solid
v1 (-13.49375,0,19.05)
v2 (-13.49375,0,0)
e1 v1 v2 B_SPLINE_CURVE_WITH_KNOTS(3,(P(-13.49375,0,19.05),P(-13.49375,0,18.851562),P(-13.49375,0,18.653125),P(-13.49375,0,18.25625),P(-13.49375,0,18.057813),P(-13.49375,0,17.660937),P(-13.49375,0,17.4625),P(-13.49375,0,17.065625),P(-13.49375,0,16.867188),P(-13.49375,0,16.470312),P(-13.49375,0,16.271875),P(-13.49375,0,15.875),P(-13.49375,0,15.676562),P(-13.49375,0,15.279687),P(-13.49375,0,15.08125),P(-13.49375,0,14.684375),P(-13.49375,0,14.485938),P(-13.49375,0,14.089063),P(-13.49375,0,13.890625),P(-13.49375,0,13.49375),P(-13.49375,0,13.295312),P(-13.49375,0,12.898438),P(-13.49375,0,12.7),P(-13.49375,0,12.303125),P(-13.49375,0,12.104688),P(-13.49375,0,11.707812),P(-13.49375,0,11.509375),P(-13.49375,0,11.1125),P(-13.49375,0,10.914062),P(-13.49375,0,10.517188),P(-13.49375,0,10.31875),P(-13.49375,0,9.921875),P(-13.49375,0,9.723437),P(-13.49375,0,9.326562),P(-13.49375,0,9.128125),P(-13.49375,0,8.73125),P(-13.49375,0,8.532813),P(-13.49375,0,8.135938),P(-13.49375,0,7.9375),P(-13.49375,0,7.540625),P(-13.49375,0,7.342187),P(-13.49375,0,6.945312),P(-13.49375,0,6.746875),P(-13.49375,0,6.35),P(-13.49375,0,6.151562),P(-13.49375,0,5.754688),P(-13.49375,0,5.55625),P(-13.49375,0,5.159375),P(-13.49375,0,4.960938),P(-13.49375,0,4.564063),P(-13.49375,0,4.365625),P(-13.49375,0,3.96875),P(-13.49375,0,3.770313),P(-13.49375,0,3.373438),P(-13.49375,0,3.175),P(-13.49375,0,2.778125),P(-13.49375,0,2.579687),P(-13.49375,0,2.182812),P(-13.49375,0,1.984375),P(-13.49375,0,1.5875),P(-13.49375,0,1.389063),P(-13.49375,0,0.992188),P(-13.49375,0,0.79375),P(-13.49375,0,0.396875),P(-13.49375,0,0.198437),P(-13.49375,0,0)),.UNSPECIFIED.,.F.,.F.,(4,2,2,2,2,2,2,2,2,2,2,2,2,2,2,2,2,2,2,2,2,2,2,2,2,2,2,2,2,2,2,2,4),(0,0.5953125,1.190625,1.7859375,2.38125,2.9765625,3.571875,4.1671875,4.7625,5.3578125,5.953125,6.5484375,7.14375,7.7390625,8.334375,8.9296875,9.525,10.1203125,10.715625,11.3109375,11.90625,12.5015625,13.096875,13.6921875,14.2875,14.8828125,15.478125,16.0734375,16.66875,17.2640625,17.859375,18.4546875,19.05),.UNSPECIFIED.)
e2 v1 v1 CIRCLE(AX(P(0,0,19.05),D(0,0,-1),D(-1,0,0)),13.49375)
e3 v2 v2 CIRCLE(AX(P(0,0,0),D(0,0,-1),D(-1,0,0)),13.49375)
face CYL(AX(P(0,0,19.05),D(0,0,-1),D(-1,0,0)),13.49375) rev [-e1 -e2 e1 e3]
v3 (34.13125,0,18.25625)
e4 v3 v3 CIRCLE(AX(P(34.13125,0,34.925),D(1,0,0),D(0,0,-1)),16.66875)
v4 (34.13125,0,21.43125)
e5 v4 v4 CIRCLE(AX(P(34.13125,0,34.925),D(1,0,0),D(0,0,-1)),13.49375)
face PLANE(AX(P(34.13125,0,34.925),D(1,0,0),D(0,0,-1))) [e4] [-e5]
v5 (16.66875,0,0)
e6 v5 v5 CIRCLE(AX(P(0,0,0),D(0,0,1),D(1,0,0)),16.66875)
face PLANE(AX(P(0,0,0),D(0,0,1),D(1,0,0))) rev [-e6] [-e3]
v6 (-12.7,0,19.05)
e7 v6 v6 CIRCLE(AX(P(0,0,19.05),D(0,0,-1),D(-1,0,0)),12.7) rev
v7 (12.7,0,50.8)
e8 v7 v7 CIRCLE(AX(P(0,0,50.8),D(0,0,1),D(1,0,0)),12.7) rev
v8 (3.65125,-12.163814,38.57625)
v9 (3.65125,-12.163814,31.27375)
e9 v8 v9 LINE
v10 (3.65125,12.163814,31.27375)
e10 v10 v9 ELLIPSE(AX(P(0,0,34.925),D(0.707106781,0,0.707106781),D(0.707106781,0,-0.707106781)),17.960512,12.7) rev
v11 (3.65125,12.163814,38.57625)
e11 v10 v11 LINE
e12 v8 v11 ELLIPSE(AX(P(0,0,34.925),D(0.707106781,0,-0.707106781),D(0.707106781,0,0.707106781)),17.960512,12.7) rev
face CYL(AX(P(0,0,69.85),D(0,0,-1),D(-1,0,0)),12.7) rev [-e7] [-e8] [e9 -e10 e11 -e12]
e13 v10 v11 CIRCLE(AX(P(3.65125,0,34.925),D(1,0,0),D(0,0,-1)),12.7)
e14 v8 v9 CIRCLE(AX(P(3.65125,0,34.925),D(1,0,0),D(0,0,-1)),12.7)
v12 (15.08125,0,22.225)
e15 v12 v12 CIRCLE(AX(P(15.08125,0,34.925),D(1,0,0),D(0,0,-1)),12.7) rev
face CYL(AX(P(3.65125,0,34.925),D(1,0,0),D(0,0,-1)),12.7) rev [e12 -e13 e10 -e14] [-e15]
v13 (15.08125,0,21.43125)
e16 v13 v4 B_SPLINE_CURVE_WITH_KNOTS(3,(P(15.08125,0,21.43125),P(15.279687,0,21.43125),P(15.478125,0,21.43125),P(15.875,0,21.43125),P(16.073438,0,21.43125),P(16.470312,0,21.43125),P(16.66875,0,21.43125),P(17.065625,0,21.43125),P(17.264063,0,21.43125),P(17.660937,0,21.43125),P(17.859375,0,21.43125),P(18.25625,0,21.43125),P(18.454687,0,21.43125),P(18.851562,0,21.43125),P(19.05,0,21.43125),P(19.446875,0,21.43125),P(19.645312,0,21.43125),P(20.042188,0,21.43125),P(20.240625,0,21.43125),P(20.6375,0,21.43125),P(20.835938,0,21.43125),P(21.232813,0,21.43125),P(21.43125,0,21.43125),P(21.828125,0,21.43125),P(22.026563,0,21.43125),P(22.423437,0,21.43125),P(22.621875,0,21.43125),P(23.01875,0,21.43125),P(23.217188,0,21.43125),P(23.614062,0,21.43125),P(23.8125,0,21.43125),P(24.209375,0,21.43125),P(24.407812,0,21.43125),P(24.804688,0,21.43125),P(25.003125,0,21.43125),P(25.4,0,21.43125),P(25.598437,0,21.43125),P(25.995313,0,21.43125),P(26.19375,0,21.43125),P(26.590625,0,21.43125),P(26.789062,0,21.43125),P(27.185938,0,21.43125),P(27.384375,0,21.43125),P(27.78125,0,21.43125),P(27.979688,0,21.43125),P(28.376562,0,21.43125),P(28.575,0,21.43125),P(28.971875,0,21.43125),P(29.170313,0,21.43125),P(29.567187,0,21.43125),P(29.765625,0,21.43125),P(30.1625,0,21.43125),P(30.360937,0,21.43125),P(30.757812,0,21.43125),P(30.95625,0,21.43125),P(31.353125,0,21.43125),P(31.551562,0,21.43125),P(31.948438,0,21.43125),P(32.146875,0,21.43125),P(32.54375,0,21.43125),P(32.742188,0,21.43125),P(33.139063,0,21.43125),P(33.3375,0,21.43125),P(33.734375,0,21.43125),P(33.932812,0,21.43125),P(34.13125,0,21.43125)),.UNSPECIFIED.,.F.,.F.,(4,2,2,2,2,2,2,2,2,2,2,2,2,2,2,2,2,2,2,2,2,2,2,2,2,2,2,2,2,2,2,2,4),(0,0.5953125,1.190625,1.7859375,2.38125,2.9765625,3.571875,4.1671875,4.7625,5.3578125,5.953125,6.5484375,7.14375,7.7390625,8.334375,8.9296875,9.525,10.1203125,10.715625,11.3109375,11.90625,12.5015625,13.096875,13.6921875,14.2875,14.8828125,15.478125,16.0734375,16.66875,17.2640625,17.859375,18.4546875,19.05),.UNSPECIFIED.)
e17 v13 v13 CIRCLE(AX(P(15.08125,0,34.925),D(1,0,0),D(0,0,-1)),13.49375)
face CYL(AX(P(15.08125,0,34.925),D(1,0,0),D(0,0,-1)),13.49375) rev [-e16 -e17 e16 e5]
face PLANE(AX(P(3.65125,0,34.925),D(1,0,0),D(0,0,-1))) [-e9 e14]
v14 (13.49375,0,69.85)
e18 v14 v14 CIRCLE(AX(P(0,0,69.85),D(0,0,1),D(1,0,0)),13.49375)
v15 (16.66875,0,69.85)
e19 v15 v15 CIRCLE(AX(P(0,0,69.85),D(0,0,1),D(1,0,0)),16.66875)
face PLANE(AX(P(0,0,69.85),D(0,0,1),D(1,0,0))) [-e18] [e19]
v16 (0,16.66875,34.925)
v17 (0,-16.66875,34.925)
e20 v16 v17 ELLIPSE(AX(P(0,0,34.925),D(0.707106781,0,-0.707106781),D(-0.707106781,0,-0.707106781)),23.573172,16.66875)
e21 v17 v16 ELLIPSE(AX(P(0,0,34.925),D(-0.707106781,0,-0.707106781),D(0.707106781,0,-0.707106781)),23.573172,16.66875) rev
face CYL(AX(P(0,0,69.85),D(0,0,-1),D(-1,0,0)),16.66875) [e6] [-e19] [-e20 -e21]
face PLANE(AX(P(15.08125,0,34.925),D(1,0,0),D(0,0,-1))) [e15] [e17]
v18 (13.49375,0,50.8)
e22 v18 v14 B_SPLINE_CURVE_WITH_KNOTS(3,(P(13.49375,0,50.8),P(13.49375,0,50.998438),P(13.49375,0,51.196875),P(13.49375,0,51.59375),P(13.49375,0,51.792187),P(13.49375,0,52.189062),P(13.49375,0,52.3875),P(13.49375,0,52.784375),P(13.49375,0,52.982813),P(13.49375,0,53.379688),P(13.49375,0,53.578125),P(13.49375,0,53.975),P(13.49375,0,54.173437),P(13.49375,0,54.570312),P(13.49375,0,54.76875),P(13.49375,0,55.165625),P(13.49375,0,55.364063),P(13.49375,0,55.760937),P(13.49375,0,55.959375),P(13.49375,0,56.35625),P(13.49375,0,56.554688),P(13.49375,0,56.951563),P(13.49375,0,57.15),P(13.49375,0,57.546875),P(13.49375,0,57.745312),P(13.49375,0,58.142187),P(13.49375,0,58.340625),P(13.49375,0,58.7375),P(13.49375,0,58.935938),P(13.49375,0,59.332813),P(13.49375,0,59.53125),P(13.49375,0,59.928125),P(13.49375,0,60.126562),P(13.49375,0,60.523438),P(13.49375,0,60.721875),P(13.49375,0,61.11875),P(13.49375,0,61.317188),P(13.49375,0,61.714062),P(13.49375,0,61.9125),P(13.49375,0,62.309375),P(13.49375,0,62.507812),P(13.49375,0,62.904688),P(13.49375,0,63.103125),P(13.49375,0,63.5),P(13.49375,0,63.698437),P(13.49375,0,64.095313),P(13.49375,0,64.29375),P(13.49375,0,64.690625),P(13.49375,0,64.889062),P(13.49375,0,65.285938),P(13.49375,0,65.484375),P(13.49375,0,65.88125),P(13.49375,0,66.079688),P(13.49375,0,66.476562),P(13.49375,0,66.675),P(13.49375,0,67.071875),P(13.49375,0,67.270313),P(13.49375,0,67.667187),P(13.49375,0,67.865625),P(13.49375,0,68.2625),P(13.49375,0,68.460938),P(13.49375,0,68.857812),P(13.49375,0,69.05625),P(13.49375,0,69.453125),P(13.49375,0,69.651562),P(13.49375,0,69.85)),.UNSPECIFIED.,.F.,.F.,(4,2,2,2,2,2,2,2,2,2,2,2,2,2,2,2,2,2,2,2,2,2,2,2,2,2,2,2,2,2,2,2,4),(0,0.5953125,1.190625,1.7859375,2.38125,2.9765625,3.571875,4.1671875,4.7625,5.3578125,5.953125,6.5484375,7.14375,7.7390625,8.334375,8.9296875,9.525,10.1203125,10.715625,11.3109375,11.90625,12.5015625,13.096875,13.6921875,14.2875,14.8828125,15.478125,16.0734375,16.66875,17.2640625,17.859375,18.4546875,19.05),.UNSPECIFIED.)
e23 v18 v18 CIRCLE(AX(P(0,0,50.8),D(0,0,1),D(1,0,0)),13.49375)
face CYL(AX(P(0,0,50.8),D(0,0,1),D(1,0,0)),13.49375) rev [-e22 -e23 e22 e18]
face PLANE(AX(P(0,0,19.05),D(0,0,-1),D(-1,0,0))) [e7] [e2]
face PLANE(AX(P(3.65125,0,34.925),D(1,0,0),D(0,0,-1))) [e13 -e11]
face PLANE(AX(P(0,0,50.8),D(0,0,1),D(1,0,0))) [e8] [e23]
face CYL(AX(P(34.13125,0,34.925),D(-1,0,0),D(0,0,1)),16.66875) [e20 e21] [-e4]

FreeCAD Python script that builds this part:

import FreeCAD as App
import Part
import Sketcher
Q = App.Units.Quantity

doc = App.newDocument("Part")
body = doc.addObject("PartDesign::Body", "Body")

sketch1 = body.newObject("Sketcher::SketchObject", "Sketch")
sketch1.AttachmentSupport = (doc.getObject("XY_Plane"), [""])
sketch1.MapMode = "FlatFace"
sketch1.addGeometry(Part.Circle(App.Vector(0, 0, 0), App.Vector(0, 0, 1), 16.66875), False)
sketch1.addConstraint(Sketcher.Constraint("Coincident", 0, 3, -1, 1))
sketch1.addConstraint(Sketcher.Constraint("Diameter", 0, Q("1.3125 in")))
pad1 = body.newObject("PartDesign::Pad", "Pad")
pad1.Profile = sketch1
pad1.Length = Q("2.75 in")

sketch2 = body.newObject("Sketcher::SketchObject", "Sketch001")
sketch2.AttachmentSupport = (doc.getObject("YZ_Plane"), [""])
sketch2.MapMode = "FlatFace"
sketch2.addGeometry(Part.Circle(App.Vector(0, 34.925, 0), App.Vector(0, 0, 1), 16.66875), False)
sketch2.addConstraint(Sketcher.Constraint("PointOnObject", 0, 3, -2))
sketch2.addConstraint(Sketcher.Constraint("Diameter", 0, Q("1.3125 in")))
sketch2.addConstraint(Sketcher.Constraint("DistanceY", -1, 1, 0, 3, Q("1.375 in")))
pad2 = body.newObject("PartDesign::Pad", "Pad001")
pad2.Profile = sketch2
pad2.Length = Q("1.34375 in")

sketch3 = body.newObject("Sketcher::SketchObject", "Sketch002")
sketch3.AttachmentSupport = (doc.getObject("YZ_Plane"), [""])
sketch3.MapMode = "FlatFace"
sketch3.AttachmentOffset = App.Placement(App.Vector(0, 0, 1.34375 * 25.4), App.Rotation())
sketch3.addGeometry(Part.Circle(App.Vector(0, 34.925, 0), App.Vector(0, 0, 1), 12.7), False)
sketch3.addConstraint(Sketcher.Constraint("PointOnObject", 0, 3, -2))
sketch3.addConstraint(Sketcher.Constraint("Diameter", 0, Q("1 in")))
sketch3.addConstraint(Sketcher.Constraint("DistanceY", -1, 1, 0, 3, Q("1.375 in")))
pocket1 = body.newObject("PartDesign::Pocket", "Pocket")
pocket1.Profile = sketch3
pocket1.Length = Q("1.2 in")

sketch4 = body.newObject("Sketcher::SketchObject", "Sketch003")
sketch4.AttachmentSupport = (doc.getObject("XY_Plane"), [""])
sketch4.MapMode = "FlatFace"
sketch4.addGeometry(Part.Circle(App.Vector(0, 0, 0), App.Vector(0, 0, 1), 12.7), False)
sketch4.addConstraint(Sketcher.Constraint("Coincident", 0, 3, -1, 1))
sketch4.addConstraint(Sketcher.Constraint("Diameter", 0, Q("1 in")))
pocket2 = body.newObject("PartDesign::Pocket", "Pocket001")
pocket2.Profile = sketch4
pocket2.Type = "ThroughAll"
pocket2.Reversed = True

sketch5 = body.newObject("Sketcher::SketchObject", "Sketch004")
sketch5.AttachmentSupport = (doc.getObject("XY_Plane"), [""])
sketch5.MapMode = "FlatFace"
sketch5.AttachmentOffset = App.Placement(App.Vector(0, 0, 2.75 * 25.4), App.Rotation())
sketch5.addGeometry(Part.Circle(App.Vector(0, 0, 0), App.Vector(0, 0, 1), 13.49375), False)
sketch5.addConstraint(Sketcher.Constraint("Coincident", 0, 3, -1, 1))
sketch5.addConstraint(Sketcher.Constraint("Diameter", 0, Q("1.0625 in")))
pocket3 = body.newObject("PartDesign::Pocket", "Pocket002")
pocket3.Profile = sketch5
pocket3.Length = Q("0.75 in")

sketch6 = body.newObject("Sketcher::SketchObject", "Sketch005")
sketch6.AttachmentSupport = (doc.getObject("YZ_Plane"), [""])
sketch6.MapMode = "FlatFace"
sketch6.AttachmentOffset = App.Placement(App.Vector(0, 0, 1.34375 * 25.4), App.Rotation())
sketch6.addGeometry(Part.Circle(App.Vector(0, 34.925, 0), App.Vector(0, 0, 1), 13.49375), False)
sketch6.addConstraint(Sketcher.Constraint("PointOnObject", 0, 3, -2))
sketch6.addConstraint(Sketcher.Constraint("Diameter", 0, Q("1.0625 in")))
sketch6.addConstraint(Sketcher.Constraint("DistanceY", -1, 1, 0, 3, Q("1.375 in")))
pocket4 = body.newObject("PartDesign::Pocket", "Pocket003")
pocket4.Profile = sketch6
pocket4.Length = Q("0.75 in")

sketch7 = body.newObject("Sketcher::SketchObject", "Sketch006")
sketch7.AttachmentSupport = (doc.getObject("XY_Plane"), [""])
sketch7.MapMode = "FlatFace"
sketch7.AttachmentOffset = App.Placement(App.Vector(0, 0, 0.75 * 25.4), App.Rotation())
sketch7.addGeometry(Part.Circle(App.Vector(0, 0, 0), App.Vector(0, 0, 1), 13.49375), False)
sketch7.addConstraint(Sketcher.Constraint("Coincident", 0, 3, -1, 1))
sketch7.addConstraint(Sketcher.Constraint("Diameter", 0, Q("1.0625 in")))
pocket5 = body.newObject("PartDesign::Pocket", "Pocket004")
pocket5.Profile = sketch7
pocket5.Length = Q("0.75 in")

doc.recompute()
